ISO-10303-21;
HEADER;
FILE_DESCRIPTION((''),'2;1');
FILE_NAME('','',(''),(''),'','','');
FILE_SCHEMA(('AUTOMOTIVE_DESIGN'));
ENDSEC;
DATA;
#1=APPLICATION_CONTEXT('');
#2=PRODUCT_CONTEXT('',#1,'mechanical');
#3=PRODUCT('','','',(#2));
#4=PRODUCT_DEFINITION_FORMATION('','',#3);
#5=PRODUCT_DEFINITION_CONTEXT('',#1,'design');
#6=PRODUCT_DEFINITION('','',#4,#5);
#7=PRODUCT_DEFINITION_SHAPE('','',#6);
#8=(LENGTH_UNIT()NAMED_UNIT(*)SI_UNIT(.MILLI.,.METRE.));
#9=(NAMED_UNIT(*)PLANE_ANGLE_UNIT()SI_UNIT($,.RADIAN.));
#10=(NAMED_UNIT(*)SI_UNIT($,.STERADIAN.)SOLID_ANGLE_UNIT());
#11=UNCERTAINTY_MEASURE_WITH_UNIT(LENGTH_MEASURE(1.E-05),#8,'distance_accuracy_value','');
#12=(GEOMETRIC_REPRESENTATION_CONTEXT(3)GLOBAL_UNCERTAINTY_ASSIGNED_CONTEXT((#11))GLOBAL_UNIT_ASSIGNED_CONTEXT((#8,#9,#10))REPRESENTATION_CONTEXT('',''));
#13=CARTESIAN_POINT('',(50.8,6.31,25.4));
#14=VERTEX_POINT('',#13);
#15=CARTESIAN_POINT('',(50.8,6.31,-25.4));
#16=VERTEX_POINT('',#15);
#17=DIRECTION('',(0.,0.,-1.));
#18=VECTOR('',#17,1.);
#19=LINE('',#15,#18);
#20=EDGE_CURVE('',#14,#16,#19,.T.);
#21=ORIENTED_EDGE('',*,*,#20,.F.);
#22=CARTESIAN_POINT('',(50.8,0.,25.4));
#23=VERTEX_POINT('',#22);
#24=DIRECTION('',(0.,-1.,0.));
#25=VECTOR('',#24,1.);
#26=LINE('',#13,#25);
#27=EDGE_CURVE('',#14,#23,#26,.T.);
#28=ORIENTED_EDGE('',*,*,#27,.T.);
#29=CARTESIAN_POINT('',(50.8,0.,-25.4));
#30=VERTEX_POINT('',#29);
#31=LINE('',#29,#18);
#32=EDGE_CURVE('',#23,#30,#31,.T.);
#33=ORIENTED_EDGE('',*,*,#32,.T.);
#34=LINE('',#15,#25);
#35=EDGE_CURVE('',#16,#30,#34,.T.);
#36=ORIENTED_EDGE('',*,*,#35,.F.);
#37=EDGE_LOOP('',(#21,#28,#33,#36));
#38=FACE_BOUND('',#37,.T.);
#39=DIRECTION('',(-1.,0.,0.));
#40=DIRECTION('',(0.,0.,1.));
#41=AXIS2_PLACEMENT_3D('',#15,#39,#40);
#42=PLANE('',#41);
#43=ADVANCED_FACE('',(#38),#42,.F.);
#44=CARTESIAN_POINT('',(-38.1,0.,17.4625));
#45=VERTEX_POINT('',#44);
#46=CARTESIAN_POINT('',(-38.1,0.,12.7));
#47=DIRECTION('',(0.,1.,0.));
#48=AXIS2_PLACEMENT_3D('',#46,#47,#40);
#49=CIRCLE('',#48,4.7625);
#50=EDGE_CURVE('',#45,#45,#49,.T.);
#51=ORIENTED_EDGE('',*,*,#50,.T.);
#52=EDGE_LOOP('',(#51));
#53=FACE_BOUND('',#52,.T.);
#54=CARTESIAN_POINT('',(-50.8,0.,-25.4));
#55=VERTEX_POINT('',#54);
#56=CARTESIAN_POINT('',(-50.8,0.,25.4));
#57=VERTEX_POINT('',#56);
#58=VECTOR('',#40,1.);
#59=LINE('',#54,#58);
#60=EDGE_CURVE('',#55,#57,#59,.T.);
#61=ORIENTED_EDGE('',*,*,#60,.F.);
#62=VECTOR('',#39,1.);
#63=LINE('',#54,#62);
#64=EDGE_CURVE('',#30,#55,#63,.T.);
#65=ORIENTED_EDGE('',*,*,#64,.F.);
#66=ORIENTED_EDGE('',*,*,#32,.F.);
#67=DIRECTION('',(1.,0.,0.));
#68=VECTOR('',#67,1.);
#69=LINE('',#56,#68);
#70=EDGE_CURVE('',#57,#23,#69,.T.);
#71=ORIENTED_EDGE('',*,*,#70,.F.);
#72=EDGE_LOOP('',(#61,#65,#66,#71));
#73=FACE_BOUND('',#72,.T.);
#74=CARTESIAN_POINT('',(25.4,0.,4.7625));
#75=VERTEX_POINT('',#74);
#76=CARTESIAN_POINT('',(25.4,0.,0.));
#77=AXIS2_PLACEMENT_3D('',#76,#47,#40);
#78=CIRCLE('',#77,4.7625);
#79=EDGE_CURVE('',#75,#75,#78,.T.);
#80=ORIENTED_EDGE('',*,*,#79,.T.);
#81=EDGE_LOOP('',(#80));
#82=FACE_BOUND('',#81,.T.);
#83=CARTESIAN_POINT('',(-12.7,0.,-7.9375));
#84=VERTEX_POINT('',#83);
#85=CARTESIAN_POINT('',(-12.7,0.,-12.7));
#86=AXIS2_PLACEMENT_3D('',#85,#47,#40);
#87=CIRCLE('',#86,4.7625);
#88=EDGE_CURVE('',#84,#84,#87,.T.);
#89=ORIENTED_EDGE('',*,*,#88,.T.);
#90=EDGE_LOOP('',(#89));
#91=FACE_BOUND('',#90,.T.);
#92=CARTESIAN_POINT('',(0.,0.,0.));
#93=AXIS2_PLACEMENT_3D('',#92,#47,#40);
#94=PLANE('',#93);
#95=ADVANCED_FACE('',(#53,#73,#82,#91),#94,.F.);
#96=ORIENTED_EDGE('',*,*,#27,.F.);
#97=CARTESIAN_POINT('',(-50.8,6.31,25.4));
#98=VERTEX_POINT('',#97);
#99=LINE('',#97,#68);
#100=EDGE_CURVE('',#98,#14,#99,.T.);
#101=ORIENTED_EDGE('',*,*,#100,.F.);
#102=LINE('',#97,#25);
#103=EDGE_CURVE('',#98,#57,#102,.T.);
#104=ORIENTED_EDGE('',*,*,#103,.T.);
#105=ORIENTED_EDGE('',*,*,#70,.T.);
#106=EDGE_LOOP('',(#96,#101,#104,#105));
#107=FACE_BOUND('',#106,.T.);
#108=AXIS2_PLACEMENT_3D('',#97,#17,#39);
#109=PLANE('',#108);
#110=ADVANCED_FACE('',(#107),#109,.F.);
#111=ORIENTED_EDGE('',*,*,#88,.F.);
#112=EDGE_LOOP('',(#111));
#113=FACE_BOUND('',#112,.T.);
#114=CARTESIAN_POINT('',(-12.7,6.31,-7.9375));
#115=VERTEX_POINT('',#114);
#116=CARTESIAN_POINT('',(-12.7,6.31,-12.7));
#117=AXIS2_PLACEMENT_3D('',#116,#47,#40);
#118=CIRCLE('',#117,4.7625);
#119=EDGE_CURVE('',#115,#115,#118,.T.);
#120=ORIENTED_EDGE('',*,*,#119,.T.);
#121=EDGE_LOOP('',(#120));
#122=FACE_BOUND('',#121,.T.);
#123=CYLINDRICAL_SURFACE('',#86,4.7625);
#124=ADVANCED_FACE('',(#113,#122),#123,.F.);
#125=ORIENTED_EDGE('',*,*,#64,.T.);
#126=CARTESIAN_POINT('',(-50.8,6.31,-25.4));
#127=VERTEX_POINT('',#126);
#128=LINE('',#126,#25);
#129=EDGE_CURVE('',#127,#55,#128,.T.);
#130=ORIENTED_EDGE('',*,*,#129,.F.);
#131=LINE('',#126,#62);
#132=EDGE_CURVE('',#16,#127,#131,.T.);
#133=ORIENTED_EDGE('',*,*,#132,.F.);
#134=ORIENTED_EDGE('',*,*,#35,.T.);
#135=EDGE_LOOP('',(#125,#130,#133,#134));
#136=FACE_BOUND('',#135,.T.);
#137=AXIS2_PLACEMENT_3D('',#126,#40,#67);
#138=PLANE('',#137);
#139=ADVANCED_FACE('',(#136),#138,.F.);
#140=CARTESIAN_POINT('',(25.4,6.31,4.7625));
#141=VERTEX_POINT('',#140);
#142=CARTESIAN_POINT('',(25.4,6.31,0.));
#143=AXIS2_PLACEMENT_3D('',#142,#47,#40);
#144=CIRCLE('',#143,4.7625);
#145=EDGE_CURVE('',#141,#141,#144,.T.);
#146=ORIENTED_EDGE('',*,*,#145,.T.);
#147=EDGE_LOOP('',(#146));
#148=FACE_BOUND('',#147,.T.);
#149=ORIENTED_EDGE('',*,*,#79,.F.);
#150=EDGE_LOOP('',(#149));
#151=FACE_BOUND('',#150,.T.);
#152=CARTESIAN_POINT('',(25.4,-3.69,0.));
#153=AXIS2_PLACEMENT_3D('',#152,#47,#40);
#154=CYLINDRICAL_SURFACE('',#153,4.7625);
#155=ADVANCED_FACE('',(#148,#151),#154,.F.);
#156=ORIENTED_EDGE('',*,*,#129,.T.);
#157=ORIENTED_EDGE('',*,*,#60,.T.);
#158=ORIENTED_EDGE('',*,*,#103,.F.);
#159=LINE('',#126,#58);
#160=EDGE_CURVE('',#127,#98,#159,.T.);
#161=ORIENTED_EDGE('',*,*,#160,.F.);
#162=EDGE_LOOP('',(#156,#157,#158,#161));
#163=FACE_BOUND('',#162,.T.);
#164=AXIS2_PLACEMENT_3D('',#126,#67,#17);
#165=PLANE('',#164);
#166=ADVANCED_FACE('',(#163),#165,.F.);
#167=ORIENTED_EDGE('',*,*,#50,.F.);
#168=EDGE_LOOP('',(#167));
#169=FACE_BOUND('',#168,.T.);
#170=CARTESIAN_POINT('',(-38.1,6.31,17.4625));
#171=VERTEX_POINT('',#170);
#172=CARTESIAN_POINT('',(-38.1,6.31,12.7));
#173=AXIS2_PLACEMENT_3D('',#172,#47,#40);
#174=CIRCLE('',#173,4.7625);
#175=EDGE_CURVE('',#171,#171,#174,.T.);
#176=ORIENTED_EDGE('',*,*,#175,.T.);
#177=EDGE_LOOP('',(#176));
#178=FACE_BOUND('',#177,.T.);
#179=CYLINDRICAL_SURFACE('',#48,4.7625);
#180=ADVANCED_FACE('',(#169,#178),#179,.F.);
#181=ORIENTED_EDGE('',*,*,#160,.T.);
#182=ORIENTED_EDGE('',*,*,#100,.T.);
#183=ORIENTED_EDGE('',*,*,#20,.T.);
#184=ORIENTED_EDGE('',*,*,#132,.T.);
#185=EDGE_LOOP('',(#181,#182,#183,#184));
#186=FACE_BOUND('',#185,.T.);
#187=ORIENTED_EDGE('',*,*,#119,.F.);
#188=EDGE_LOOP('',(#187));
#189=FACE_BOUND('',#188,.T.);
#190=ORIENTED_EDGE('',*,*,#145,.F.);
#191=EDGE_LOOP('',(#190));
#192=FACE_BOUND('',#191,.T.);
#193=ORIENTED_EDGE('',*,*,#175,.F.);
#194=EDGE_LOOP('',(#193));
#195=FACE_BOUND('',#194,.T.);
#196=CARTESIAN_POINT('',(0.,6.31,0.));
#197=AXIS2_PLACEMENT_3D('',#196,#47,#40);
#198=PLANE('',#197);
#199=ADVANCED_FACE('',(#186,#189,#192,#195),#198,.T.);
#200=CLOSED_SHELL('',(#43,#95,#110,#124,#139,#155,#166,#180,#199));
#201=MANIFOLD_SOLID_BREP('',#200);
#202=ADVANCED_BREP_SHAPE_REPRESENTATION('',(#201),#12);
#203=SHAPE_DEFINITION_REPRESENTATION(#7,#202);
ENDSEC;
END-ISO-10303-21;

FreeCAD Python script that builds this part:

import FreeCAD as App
import Part
import Sketcher
Q = App.Units.Quantity

doc = App.newDocument("Part")
body = doc.addObject("PartDesign::Body", "Body")

sketch1 = body.newObject("Sketcher::SketchObject", "Sketch")
sketch1.AttachmentSupport = (doc.getObject("XZ_Plane"), [""])
sketch1.MapMode = "FlatFace"
sketch1.addGeometry([
    Part.LineSegment(App.Vector(-50.8, -25.4, 0), App.Vector(-50.8, 25.4, 0)),
    Part.LineSegment(App.Vector(-50.8, 25.4, 0), App.Vector(50.8, 25.4, 0)),
    Part.LineSegment(App.Vector(50.8, 25.4, 0), App.Vector(50.8, -25.4, 0)),
    Part.LineSegment(App.Vector(50.8, -25.4, 0), App.Vector(-50.8, -25.4, 0)),
], False)
sketch1.addConstraint([
    Sketcher.Constraint("Coincident", 0, 2, 1, 1),
    Sketcher.Constraint("Coincident", 1, 2, 2, 1),
    Sketcher.Constraint("Coincident", 2, 2, 3, 1),
    Sketcher.Constraint("Coincident", 3, 2, 0, 1),
    Sketcher.Constraint("Vertical", 0),
    Sketcher.Constraint("Horizontal", 1),
    Sketcher.Constraint("Vertical", 2),
    Sketcher.Constraint("Horizontal", 3),
    Sketcher.Constraint("Symmetric", 0, 2, 2, 2, -1, 1),
    Sketcher.Constraint("DistanceX", 1, 1, 1, 2, Q("4 in")),
    Sketcher.Constraint("DistanceY", 0, 1, 0, 2, Q("2 in")),
])
pad1 = body.newObject("PartDesign::Pad", "Pad")
pad1.Profile = sketch1
pad1.Length = 6.31
pad1.Reversed = True

sketch2 = body.newObject("Sketcher::SketchObject", "Sketch001")
sketch2.AttachmentSupport = (doc.getObject("XZ_Plane"), [""])
sketch2.MapMode = "FlatFace"
sketch2.AttachmentOffset = App.Placement(App.Vector(0, 0, -6.31), App.Rotation())
sketch2.addGeometry([
    Part.Circle(App.Vector(-38.1, 12.7, 0), App.Vector(0, 0, 1), 4.7625),
    Part.Circle(App.Vector(-12.7, -12.7, 0), App.Vector(0, 0, 1), 4.7625),
], False)
sketch2.addConstraint([
    Sketcher.Constraint("Equal", 0, 1),
    Sketcher.Constraint("Diameter", 0, Q("0.375 in")),
    Sketcher.Constraint("DistanceX", 0, 3, 1, 3, Q("1 in")),
    Sketcher.Constraint("DistanceY", 1, 3, 0, 3, Q("1 in")),
    Sketcher.Constraint("DistanceX", 0, 3, -1, 1, Q("1.5 in")),
    Sketcher.Constraint("DistanceY", -1, 1, 0, 3, Q("0.5 in")),
])
pocket1 = body.newObject("PartDesign::Pocket", "Pocket")
pocket1.Profile = sketch2
pocket1.Length = 6.31
pocket1.Reversed = True

sketch3 = body.newObject("Sketcher::SketchObject", "Sketch002")
sketch3.AttachmentSupport = (doc.getObject("XZ_Plane"), [""])
sketch3.MapMode = "FlatFace"
sketch3.AttachmentOffset = App.Placement(App.Vector(0, 0, -6.31), App.Rotation())
sketch3.addGeometry(Part.Circle(App.Vector(25.4, 0, 0), App.Vector(0, 0, 1), 4.7625), False)
sketch3.addConstraint([
    Sketcher.Constraint("PointOnObject", 0, 3, -1),
    Sketcher.Constraint("Diameter", 0, Q("0.375 in")),
    Sketcher.Constraint("DistanceX", -1, 1, 0, 3, Q("1 in")),
])
pocket2 = body.newObject("PartDesign::Pocket", "Pocket001")
pocket2.Profile = sketch3
pocket2.Length = 10
pocket2.Reversed = True

doc.recompute()
